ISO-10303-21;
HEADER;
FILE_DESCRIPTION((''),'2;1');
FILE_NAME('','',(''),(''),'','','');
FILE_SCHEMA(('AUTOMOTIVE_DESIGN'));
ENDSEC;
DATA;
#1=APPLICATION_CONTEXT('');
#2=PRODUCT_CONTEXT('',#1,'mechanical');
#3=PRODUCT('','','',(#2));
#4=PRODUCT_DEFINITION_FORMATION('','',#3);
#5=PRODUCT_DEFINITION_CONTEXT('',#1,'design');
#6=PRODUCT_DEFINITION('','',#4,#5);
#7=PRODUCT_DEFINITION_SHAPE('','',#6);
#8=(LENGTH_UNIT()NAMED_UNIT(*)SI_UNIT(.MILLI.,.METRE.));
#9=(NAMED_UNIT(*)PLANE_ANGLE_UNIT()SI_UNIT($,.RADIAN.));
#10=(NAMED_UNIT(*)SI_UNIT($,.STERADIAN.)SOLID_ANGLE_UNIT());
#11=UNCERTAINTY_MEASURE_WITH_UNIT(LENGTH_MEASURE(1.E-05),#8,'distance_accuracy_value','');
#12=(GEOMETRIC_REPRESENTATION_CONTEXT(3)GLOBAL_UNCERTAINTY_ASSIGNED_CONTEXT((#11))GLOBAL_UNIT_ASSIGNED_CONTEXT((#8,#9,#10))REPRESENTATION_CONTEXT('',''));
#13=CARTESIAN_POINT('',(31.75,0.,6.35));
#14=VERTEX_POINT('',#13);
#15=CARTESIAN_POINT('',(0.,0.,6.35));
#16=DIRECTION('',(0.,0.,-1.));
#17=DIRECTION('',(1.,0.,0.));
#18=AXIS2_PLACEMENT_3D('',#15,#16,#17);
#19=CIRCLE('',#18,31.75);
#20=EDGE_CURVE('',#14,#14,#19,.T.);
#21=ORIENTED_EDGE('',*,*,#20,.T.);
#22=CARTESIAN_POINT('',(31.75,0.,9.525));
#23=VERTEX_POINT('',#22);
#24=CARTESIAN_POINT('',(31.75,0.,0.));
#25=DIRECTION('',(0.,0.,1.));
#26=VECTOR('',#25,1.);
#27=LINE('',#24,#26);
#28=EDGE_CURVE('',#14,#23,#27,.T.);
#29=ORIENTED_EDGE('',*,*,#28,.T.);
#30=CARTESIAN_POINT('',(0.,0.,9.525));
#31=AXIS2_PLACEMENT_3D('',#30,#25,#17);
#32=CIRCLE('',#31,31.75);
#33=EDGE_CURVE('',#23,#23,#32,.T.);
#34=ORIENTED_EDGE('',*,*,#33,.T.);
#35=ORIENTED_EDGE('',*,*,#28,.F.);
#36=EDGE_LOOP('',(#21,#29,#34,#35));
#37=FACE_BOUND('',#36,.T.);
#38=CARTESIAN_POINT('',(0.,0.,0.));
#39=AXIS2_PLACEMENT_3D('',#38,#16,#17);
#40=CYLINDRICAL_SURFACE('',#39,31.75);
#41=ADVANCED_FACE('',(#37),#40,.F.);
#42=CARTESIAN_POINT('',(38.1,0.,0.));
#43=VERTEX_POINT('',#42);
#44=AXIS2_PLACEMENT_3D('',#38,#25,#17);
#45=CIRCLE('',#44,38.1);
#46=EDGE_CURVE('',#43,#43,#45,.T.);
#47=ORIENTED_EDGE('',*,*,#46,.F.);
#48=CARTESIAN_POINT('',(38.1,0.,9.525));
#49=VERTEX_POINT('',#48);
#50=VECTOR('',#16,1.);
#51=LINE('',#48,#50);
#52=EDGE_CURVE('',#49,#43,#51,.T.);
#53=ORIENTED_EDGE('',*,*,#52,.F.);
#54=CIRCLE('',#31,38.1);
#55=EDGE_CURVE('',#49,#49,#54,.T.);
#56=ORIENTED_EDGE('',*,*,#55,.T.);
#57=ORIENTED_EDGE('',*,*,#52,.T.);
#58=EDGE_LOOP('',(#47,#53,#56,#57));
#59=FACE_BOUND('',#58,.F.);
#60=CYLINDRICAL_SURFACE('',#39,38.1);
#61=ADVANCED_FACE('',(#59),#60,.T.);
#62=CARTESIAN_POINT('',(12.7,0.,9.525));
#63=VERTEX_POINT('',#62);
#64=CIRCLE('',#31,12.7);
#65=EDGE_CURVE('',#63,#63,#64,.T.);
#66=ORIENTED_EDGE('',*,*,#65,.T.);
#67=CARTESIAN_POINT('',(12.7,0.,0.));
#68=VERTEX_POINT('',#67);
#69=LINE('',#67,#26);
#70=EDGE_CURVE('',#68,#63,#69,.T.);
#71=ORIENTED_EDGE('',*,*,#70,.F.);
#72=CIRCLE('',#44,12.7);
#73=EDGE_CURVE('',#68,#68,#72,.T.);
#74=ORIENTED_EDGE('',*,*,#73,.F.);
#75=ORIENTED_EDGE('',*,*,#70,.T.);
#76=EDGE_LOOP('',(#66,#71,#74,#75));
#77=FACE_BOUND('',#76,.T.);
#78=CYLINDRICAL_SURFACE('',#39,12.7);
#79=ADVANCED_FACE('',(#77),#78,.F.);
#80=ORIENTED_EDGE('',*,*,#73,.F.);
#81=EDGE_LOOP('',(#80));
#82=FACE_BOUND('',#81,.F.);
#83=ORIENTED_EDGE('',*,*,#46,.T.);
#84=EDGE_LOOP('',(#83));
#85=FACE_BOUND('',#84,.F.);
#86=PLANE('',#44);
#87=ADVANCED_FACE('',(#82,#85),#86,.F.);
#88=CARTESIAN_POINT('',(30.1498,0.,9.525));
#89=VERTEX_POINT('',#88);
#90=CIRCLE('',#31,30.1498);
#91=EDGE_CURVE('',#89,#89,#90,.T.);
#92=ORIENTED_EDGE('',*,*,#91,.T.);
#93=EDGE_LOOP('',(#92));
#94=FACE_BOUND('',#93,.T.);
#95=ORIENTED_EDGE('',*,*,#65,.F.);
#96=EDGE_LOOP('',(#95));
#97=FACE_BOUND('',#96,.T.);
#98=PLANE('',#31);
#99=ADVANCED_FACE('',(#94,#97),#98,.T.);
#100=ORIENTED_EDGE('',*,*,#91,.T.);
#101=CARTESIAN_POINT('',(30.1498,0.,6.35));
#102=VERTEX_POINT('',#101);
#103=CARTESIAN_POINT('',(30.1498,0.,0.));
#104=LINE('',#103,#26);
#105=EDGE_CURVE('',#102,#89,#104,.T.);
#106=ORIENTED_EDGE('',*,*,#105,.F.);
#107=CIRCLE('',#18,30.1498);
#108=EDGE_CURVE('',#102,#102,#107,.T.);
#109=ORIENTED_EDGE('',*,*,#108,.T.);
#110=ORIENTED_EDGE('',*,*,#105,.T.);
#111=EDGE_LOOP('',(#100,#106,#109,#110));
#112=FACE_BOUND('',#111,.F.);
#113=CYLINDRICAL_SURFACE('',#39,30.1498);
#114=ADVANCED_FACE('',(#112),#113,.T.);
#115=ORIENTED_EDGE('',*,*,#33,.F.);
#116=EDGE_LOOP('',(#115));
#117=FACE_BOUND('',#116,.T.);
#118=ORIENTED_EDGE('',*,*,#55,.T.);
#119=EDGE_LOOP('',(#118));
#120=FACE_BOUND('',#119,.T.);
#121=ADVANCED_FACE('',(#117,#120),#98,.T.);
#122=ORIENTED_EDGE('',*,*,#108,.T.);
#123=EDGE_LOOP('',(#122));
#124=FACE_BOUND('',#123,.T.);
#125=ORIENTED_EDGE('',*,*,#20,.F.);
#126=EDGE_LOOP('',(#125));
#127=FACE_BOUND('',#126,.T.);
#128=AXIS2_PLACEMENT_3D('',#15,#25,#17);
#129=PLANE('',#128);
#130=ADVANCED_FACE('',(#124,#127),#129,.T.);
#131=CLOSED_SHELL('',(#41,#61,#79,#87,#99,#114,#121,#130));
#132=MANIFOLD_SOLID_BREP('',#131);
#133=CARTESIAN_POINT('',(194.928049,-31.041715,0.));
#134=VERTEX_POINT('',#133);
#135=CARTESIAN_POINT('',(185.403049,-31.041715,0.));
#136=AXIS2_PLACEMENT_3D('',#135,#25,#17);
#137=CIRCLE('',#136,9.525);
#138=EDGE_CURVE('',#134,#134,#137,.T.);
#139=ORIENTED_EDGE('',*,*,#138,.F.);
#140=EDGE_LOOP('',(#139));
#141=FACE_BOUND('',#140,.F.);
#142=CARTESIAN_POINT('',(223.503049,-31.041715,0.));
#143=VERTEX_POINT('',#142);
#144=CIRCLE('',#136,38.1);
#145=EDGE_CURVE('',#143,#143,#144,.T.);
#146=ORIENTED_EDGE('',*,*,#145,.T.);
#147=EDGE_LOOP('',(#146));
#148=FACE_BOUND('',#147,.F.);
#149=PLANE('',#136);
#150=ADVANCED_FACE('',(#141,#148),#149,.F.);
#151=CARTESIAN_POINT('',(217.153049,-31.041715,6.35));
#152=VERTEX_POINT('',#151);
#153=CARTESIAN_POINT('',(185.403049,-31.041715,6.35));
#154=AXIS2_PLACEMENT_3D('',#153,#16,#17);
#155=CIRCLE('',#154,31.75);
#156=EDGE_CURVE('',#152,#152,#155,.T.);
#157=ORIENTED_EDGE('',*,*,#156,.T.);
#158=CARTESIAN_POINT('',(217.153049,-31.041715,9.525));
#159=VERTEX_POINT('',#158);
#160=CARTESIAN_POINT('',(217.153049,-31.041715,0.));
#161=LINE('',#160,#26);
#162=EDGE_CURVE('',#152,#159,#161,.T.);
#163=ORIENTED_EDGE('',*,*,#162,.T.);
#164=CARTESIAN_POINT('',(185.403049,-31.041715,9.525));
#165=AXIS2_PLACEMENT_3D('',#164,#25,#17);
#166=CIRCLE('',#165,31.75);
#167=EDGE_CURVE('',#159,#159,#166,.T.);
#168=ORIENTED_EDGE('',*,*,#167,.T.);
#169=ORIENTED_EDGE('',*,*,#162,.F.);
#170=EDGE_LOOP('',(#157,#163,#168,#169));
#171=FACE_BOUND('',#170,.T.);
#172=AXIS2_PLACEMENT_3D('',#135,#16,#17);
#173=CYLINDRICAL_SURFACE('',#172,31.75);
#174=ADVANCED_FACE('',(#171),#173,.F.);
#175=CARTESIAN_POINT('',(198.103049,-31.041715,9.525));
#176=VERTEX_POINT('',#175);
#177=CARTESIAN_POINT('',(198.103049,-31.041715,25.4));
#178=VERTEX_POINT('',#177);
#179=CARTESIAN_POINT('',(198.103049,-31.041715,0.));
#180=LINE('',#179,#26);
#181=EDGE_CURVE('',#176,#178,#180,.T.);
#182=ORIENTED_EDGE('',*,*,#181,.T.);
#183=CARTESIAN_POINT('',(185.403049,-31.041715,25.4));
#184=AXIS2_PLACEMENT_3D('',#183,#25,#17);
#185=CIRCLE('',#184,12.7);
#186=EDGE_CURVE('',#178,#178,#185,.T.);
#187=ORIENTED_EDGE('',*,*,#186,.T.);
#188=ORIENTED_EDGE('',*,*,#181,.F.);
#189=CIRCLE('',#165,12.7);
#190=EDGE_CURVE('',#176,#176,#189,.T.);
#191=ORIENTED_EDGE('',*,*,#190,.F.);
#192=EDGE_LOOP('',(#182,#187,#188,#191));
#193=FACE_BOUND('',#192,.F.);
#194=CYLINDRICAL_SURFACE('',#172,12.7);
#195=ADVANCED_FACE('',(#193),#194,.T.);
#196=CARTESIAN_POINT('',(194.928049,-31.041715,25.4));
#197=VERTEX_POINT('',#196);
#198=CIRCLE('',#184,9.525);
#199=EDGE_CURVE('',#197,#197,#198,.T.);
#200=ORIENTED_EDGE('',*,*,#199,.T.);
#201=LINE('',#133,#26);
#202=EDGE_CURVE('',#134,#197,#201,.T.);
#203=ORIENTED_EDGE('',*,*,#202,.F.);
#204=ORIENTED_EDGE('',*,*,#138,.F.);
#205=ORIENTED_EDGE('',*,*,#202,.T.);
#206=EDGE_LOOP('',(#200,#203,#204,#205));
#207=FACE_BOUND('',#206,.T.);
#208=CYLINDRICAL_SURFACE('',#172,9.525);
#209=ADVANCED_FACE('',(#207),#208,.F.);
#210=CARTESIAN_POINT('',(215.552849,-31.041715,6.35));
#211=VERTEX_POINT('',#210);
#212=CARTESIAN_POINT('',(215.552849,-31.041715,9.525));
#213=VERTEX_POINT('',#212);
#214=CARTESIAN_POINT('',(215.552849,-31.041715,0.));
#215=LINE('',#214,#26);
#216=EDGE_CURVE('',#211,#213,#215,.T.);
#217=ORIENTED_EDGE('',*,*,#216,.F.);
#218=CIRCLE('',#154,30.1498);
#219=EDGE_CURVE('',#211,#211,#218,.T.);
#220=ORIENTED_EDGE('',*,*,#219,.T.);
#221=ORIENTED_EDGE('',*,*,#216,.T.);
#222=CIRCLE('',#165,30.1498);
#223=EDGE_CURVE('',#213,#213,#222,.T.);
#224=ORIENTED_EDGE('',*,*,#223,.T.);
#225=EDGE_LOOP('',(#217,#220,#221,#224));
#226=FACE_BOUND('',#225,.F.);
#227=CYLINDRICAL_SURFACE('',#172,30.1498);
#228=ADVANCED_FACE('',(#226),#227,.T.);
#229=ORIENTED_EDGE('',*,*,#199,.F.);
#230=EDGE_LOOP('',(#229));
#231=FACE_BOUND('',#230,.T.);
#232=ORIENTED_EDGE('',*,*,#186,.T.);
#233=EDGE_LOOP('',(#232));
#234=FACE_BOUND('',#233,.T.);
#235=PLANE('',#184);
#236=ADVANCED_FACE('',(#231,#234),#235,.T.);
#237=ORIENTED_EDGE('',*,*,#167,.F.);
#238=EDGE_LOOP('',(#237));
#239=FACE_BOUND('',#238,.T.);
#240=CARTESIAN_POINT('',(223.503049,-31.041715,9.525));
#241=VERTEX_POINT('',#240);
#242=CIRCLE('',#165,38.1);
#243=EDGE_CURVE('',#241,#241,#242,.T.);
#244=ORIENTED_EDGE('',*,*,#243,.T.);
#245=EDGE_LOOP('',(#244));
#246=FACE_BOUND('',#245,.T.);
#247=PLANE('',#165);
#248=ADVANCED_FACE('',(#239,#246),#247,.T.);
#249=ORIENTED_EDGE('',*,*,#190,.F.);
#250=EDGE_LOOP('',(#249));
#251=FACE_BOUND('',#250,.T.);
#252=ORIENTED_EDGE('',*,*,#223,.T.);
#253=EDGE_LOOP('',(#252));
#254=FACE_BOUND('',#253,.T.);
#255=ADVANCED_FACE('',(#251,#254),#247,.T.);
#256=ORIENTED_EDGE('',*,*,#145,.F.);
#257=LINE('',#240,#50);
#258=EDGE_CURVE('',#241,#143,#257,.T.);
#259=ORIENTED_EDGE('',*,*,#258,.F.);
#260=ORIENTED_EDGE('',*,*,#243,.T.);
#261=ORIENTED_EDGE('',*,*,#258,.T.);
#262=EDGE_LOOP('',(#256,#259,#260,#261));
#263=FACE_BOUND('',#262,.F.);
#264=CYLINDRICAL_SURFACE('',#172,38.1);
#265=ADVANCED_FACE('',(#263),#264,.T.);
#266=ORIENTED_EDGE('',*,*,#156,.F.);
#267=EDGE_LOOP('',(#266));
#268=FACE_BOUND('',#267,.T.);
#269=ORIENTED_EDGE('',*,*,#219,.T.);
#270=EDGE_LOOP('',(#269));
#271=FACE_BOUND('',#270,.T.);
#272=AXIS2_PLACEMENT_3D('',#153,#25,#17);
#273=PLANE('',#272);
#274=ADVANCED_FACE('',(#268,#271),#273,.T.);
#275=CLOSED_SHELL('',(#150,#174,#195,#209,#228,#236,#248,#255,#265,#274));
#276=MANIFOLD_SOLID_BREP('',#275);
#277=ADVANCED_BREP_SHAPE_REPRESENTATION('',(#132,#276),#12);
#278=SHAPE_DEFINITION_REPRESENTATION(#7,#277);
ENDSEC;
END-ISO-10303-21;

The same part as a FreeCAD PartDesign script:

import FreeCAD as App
import Part
import Sketcher

V = App.Vector
Q = App.Units.Quantity

doc = App.newDocument("Part")
body = doc.addObject("PartDesign::Body", "Body")

sketch1 = body.newObject("Sketcher::SketchObject", "Sketch")
sketch1.AttachmentSupport = (doc.getObject("XY_Plane"), [""])
sketch1.MapMode = "FlatFace"
sketch1.addGeometry(Part.Circle(V(0, 0, 0), V(0, 0, 1), 38), False)
sketch1.addGeometry(Part.Circle(V(0, 0, 0), V(0, 0, 1), 13), False)
sketch1.addConstraint(Sketcher.Constraint("Coincident", 0, 3, -1, 1))
sketch1.addConstraint(Sketcher.Constraint("Coincident", 1, 3, -1, 1))
sketch1.addConstraint(Sketcher.Constraint("Diameter", 0, Q("3 in")))
sketch1.addConstraint(Sketcher.Constraint("Diameter", 1, Q("1 in")))
pad1 = body.newObject("PartDesign::Pad", "Pad")
pad1.Profile = sketch1
pad1.Length = Q("0.25 in")

sketch2 = body.newObject("Sketcher::SketchObject", "Sketch001")
sketch2.AttachmentSupport = (doc.getObject("XY_Plane"), [""])
sketch2.MapMode = "FlatFace"
sketch2.addGeometry(Part.Circle(V(0, 0, 0), V(0, 0, 1), 38), False)
sketch2.addGeometry(Part.Circle(V(0, 0, 0), V(0, 0, 1), 32), False)
sketch2.addGeometry(Part.Circle(V(0, 0, 0), V(0, 0, 1), 30), False)
sketch2.addGeometry(Part.Circle(V(0, 0, 0), V(0, 0, 1), 13), False)
sketch2.addConstraint(Sketcher.Constraint("Coincident", 0, 3, -1, 1))
sketch2.addConstraint(Sketcher.Constraint("Coincident", 1, 3, -1, 1))
sketch2.addConstraint(Sketcher.Constraint("Coincident", 2, 3, -1, 1))
sketch2.addConstraint(Sketcher.Constraint("Coincident", 3, 3, -1, 1))
sketch2.addConstraint(Sketcher.Constraint("Diameter", 0, Q("3 in")))
sketch2.addConstraint(Sketcher.Constraint("Diameter", 3, Q("1 in")))
sketch2.addConstraint(Sketcher.Constraint("Diameter", 1, Q("2.5 in")))
sketch2.addConstraint(Sketcher.Constraint("Diameter", 2, Q("2.374 in")))
pad2 = body.newObject("PartDesign::Pad", "Pad001")
pad2.Profile = sketch2
pad2.Length = Q("0.375 in")
body2 = doc.addObject("PartDesign::Body", "Body001")

sketch3 = body2.newObject("Sketcher::SketchObject", "Sketch002")
sketch3.AttachmentSupport = (doc.getObject("XY_Plane001"), [""])
sketch3.MapMode = "FlatFace"
sketch3.addGeometry(Part.Circle(V(185, -31, 0), V(0, 0, 1), 38), False)
sketch3.addGeometry(Part.Circle(V(185, -31, 0), V(0, 0, 1), 13), False)
sketch3.addConstraint(Sketcher.Constraint("Coincident", 1, 3, 0, 3))
sketch3.addConstraint(Sketcher.Constraint("Diameter", 0, Q("3 in")))
sketch3.addConstraint(Sketcher.Constraint("Diameter", 1, Q("1 in")))
sketch3.addConstraint(Sketcher.Constraint("DistanceX", -1, 1, 0, 3, Q("185.403049 mm")))
sketch3.addConstraint(Sketcher.Constraint("DistanceY", 0, 3, -1, 1, Q("31.041715 mm")))
pad3 = body2.newObject("PartDesign::Pad", "Pad002")
pad3.Profile = sketch3
pad3.Length = Q("0.25 in")

sketch4 = body2.newObject("Sketcher::SketchObject", "Sketch003")
sketch4.AttachmentSupport = (doc.getObject("XY_Plane001"), [""])
sketch4.MapMode = "FlatFace"
sketch4.addGeometry(Part.Circle(V(185, -31, 0), V(0, 0, 1), 38), False)
sketch4.addGeometry(Part.Circle(V(185, -31, 0), V(0, 0, 1), 32), False)
sketch4.addGeometry(Part.Circle(V(185, -31, 0), V(0, 0, 1), 30), False)
sketch4.addGeometry(Part.Circle(V(185, -31, 0), V(0, 0, 1), 13), False)
sketch4.addConstraint(Sketcher.Constraint("Coincident", 1, 3, 0, 3))
sketch4.addConstraint(Sketcher.Constraint("Coincident", 2, 3, 0, 3))
sketch4.addConstraint(Sketcher.Constraint("Coincident", 3, 3, 0, 3))
sketch4.addConstraint(Sketcher.Constraint("Diameter", 0, Q("3 in")))
sketch4.addConstraint(Sketcher.Constraint("Diameter", 3, Q("1 in")))
sketch4.addConstraint(Sketcher.Constraint("Diameter", 1, Q("2.5 in")))
sketch4.addConstraint(Sketcher.Constraint("Diameter", 2, Q("2.374 in")))
sketch4.addConstraint(Sketcher.Constraint("DistanceX", -1, 1, 0, 3, Q("185.403049 mm")))
sketch4.addConstraint(Sketcher.Constraint("DistanceY", 0, 3, -1, 1, Q("31.041715 mm")))
pad4 = body2.newObject("PartDesign::Pad", "Pad003")
pad4.Profile = sketch4
pad4.Length = Q("0.375 in")

sketch5 = body2.newObject("Sketcher::SketchObject", "Sketch004")
sketch5.AttachmentSupport = (doc.getObject("XY_Plane001"), [""])
sketch5.MapMode = "FlatFace"
sketch5.addGeometry(Part.Circle(V(185, -31, 0), V(0, 0, 1), 13), False)
sketch5.addGeometry(Part.Circle(V(185, -31, 0), V(0, 0, 1), 10), False)
sketch5.addConstraint(Sketcher.Constraint("Coincident", 1, 3, 0, 3))
sketch5.addConstraint(Sketcher.Constraint("Diameter", 0, Q("1 in")))
sketch5.addConstraint(Sketcher.Constraint("Diameter", 1, Q("0.75 in")))
sketch5.addConstraint(Sketcher.Constraint("DistanceX", -1, 1, 0, 3, Q("185.403049 mm")))
sketch5.addConstraint(Sketcher.Constraint("DistanceY", 0, 3, -1, 1, Q("31.041715 mm")))
pad5 = body2.newObject("PartDesign::Pad", "Pad004")
pad5.Profile = sketch5
pad5.Length = Q("1 in")

doc.recompute()
